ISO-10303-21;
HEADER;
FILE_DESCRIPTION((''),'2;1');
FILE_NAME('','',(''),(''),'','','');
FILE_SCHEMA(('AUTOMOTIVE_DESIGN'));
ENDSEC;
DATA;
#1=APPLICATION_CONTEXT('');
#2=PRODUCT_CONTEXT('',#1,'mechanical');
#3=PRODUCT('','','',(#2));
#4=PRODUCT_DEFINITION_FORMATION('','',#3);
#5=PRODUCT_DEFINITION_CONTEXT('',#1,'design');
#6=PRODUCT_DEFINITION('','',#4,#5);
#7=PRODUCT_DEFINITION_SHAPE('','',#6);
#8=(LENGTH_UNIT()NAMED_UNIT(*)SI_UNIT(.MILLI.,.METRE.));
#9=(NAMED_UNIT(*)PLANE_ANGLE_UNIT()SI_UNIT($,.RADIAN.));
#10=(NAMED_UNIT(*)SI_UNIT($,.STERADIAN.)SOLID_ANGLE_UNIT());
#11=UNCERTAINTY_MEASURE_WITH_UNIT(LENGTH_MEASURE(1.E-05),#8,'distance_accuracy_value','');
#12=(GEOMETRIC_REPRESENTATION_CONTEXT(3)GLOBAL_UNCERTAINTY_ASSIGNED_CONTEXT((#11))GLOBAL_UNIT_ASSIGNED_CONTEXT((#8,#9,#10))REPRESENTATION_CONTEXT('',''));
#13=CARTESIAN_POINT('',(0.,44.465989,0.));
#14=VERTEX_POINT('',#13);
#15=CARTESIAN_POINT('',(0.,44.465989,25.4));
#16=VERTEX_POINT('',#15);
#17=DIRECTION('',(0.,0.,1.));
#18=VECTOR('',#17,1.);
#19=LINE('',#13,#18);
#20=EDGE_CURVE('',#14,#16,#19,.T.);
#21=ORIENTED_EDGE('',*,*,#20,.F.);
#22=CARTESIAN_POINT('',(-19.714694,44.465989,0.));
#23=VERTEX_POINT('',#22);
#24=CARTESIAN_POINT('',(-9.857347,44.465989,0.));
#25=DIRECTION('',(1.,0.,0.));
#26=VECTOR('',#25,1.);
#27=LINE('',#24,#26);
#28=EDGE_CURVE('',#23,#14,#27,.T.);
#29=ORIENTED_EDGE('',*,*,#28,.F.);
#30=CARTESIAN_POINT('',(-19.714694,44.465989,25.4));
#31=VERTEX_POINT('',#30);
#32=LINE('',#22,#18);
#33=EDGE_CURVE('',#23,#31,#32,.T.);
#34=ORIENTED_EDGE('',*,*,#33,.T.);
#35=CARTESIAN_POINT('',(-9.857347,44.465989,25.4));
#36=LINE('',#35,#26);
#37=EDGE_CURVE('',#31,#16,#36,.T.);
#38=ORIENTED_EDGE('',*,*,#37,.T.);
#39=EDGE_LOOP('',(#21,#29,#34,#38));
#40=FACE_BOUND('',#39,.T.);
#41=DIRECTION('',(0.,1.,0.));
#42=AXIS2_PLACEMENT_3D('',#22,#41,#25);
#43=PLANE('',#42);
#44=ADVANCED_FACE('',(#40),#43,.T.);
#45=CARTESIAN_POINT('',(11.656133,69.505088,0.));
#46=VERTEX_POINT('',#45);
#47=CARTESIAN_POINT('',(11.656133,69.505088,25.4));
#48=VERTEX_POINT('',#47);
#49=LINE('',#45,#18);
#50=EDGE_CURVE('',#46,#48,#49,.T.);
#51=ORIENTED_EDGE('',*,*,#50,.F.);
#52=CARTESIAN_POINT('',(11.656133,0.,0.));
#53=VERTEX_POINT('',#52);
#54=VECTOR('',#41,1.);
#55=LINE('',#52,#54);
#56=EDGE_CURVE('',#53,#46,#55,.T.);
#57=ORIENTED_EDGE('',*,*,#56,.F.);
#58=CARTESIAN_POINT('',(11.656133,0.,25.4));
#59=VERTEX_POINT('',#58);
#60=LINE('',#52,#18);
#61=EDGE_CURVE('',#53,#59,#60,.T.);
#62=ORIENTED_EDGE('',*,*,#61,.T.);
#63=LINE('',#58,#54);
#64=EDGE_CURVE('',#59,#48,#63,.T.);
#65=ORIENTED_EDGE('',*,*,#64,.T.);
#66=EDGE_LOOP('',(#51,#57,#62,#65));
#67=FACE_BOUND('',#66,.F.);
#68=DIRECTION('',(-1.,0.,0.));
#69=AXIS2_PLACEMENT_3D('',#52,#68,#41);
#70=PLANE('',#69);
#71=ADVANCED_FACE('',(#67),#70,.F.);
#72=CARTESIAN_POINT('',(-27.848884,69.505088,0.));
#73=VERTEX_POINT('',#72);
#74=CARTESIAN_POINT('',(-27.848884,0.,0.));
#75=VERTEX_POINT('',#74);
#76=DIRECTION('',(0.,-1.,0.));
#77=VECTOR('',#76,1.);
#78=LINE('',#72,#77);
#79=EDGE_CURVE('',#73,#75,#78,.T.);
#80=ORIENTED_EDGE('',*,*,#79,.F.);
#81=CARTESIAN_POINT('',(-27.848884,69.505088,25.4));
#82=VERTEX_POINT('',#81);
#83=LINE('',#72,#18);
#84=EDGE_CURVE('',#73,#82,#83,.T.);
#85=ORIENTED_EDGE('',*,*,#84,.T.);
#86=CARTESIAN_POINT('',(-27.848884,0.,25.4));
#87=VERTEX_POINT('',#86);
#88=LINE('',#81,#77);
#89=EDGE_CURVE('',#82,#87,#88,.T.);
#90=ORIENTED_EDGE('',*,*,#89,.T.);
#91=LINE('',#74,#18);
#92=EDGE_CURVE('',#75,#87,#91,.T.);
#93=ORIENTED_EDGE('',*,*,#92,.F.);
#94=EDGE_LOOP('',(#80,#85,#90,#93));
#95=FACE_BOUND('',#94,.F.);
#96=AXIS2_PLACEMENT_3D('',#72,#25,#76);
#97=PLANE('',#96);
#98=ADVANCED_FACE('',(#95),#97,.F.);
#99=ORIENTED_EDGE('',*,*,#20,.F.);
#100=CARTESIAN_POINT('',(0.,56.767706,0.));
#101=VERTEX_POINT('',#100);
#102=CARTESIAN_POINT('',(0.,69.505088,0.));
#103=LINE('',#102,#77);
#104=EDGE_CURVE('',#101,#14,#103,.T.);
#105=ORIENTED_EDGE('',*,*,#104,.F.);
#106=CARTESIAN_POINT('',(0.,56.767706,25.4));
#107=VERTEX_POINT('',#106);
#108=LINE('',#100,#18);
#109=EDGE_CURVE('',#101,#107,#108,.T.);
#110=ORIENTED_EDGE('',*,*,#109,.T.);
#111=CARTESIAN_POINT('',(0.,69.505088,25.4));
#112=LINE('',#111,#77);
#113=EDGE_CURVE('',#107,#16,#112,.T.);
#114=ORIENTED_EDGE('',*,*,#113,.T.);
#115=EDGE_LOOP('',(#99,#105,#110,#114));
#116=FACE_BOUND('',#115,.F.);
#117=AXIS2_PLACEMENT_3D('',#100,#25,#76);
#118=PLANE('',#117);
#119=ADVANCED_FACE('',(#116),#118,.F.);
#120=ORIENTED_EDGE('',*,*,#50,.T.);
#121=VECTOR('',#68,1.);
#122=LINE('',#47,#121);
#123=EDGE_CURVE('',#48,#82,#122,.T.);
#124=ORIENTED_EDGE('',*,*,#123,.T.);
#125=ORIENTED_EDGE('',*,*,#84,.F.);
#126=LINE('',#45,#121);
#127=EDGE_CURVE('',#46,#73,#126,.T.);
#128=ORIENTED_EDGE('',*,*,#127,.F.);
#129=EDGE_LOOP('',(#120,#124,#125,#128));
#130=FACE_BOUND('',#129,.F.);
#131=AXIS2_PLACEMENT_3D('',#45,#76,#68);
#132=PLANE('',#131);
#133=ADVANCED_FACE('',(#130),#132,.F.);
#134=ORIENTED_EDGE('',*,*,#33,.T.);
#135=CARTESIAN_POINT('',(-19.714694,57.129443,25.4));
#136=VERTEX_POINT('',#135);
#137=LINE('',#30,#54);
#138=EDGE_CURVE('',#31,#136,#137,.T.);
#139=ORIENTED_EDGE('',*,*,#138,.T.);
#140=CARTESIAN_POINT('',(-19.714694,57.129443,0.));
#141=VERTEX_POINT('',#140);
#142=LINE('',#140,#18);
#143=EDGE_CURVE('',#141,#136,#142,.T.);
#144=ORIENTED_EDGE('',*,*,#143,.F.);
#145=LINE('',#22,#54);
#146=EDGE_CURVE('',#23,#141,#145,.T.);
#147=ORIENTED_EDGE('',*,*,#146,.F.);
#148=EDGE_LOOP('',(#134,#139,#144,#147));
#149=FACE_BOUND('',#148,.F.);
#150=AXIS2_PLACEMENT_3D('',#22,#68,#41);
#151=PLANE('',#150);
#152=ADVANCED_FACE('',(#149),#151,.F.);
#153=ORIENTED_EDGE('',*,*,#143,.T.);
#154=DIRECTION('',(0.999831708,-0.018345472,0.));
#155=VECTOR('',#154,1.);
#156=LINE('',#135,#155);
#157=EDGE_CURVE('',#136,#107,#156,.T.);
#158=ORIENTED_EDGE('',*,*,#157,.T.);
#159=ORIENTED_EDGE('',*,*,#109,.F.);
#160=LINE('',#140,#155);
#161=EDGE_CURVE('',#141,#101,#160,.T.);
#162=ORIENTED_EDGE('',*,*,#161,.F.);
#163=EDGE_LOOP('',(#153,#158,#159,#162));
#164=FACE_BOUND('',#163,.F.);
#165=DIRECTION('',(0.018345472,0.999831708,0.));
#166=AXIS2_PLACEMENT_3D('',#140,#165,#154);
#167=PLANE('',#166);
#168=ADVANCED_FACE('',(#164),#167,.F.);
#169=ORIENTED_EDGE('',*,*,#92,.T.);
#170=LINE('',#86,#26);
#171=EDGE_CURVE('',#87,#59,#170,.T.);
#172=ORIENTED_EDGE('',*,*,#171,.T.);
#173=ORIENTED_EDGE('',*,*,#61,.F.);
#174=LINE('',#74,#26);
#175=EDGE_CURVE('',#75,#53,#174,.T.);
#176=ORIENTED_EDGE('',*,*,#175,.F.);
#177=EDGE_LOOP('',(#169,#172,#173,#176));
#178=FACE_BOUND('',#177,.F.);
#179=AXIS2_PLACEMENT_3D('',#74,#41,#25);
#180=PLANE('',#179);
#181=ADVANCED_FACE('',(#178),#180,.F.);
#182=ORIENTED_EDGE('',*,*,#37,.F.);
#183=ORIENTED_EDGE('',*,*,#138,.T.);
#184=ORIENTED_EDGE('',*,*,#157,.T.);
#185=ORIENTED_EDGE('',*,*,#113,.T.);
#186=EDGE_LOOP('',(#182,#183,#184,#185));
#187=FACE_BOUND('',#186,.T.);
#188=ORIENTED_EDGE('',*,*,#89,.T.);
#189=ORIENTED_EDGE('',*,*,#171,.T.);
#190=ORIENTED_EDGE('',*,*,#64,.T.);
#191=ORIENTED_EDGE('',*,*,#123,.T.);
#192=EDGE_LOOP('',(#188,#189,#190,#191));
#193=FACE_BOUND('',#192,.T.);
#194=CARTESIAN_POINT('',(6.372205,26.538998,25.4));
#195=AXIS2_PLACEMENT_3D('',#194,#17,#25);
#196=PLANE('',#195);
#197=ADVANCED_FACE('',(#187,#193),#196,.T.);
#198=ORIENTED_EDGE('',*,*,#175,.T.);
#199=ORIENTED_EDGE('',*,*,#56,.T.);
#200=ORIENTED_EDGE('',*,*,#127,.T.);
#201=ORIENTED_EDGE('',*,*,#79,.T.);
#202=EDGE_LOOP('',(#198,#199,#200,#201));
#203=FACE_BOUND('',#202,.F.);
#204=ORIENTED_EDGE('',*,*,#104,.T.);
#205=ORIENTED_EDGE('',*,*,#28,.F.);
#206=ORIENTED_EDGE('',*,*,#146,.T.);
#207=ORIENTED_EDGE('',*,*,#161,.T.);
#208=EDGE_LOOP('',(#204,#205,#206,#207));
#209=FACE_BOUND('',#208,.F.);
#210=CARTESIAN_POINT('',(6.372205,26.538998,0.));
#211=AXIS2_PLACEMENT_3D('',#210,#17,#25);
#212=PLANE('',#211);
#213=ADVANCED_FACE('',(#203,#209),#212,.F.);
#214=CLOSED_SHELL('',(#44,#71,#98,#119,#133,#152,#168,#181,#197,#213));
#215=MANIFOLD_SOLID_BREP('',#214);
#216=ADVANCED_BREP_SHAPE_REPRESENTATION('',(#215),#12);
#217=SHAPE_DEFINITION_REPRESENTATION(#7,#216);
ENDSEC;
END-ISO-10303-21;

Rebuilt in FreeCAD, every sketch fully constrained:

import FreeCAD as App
import Part
import Sketcher

V = App.Vector
Q = App.Units.Quantity

doc = App.newDocument("Part")
body = doc.addObject("PartDesign::Body", "Body")

# Sketch on XY plane
sketch1 = body.newObject("Sketcher::SketchObject", "Sketch")
sketch1.AttachmentSupport = (doc.getObject("XY_Plane"), [""])
sketch1.MapMode = "FlatFace"
sketch1.addGeometry(Part.LineSegment(V(-28, 70, 0), V(-28, 0, 0)), False)
sketch1.addGeometry(Part.LineSegment(V(-28, 0, 0), V(12, 0, 0)), False)
sketch1.addGeometry(Part.LineSegment(V(12, 0, 0), V(12, 70, 0)), False)
sketch1.addGeometry(Part.LineSegment(V(12, 70, 0), V(-28, 70, 0)), False)
sketch1.addGeometry(Part.LineSegment(V(0, 44, 0), V(-20, 44, 0)), False)
sketch1.addGeometry(Part.LineSegment(V(-20, 44, 0), V(-20, 57, 0)), False)
sketch1.addGeometry(Part.LineSegment(V(-20, 57, 0), V(0, 57, 0)), False)
sketch1.addGeometry(Part.LineSegment(V(0, 57, 0), V(0, 44, 0)), False)
sketch1.addConstraint(Sketcher.Constraint("Coincident", 0, 2, 1, 1))
sketch1.addConstraint(Sketcher.Constraint("Coincident", 1, 2, 2, 1))
sketch1.addConstraint(Sketcher.Constraint("Coincident", 2, 2, 3, 1))
sketch1.addConstraint(Sketcher.Constraint("Coincident", 3, 2, 0, 1))
sketch1.addConstraint(Sketcher.Constraint("Coincident", 4, 2, 5, 1))
sketch1.addConstraint(Sketcher.Constraint("Coincident", 5, 2, 6, 1))
sketch1.addConstraint(Sketcher.Constraint("Coincident", 6, 2, 7, 1))
sketch1.addConstraint(Sketcher.Constraint("Coincident", 7, 2, 4, 1))
sketch1.addConstraint(Sketcher.Constraint("Vertical", 0))
sketch1.addConstraint(Sketcher.Constraint("Horizontal", 1))
sketch1.addConstraint(Sketcher.Constraint("Vertical", 2))
sketch1.addConstraint(Sketcher.Constraint("Horizontal", 3))
sketch1.addConstraint(Sketcher.Constraint("Horizontal", 4))
sketch1.addConstraint(Sketcher.Constraint("Vertical", 5))
sketch1.addConstraint(Sketcher.Constraint("Vertical", 7))
sketch1.addConstraint(Sketcher.Constraint("PointOnObject", 0, 2, -1))
sketch1.addConstraint(Sketcher.Constraint("PointOnObject", 6, 2, -2))
sketch1.addConstraint(Sketcher.Constraint("DistanceY", 0, 2, 0, 1, Q("69.505088 mm")))
sketch1.addConstraint(Sketcher.Constraint("DistanceY", 4, 2, 3, 2, Q("25.039099 mm")))
sketch1.addConstraint(Sketcher.Constraint("DistanceX", 1, 1, 1, 2, Q("39.505017 mm")))
sketch1.addConstraint(Sketcher.Constraint("DistanceX", 4, 2, 4, 1, Q("19.714694 mm")))
sketch1.addConstraint(Sketcher.Constraint("DistanceY", 5, 1, 5, 2, Q("12.663454 mm")))
sketch1.addConstraint(Sketcher.Constraint("DistanceY", 7, 2, 7, 1, Q("12.301718 mm")))
sketch1.addConstraint(Sketcher.Constraint("DistanceX", 3, 2, 4, 2, Q("8.13419 mm")))
pad1 = body.newObject("PartDesign::Pad", "Pad")
pad1.Profile = sketch1
pad1.Length = Q("1 in")

doc.recompute()
